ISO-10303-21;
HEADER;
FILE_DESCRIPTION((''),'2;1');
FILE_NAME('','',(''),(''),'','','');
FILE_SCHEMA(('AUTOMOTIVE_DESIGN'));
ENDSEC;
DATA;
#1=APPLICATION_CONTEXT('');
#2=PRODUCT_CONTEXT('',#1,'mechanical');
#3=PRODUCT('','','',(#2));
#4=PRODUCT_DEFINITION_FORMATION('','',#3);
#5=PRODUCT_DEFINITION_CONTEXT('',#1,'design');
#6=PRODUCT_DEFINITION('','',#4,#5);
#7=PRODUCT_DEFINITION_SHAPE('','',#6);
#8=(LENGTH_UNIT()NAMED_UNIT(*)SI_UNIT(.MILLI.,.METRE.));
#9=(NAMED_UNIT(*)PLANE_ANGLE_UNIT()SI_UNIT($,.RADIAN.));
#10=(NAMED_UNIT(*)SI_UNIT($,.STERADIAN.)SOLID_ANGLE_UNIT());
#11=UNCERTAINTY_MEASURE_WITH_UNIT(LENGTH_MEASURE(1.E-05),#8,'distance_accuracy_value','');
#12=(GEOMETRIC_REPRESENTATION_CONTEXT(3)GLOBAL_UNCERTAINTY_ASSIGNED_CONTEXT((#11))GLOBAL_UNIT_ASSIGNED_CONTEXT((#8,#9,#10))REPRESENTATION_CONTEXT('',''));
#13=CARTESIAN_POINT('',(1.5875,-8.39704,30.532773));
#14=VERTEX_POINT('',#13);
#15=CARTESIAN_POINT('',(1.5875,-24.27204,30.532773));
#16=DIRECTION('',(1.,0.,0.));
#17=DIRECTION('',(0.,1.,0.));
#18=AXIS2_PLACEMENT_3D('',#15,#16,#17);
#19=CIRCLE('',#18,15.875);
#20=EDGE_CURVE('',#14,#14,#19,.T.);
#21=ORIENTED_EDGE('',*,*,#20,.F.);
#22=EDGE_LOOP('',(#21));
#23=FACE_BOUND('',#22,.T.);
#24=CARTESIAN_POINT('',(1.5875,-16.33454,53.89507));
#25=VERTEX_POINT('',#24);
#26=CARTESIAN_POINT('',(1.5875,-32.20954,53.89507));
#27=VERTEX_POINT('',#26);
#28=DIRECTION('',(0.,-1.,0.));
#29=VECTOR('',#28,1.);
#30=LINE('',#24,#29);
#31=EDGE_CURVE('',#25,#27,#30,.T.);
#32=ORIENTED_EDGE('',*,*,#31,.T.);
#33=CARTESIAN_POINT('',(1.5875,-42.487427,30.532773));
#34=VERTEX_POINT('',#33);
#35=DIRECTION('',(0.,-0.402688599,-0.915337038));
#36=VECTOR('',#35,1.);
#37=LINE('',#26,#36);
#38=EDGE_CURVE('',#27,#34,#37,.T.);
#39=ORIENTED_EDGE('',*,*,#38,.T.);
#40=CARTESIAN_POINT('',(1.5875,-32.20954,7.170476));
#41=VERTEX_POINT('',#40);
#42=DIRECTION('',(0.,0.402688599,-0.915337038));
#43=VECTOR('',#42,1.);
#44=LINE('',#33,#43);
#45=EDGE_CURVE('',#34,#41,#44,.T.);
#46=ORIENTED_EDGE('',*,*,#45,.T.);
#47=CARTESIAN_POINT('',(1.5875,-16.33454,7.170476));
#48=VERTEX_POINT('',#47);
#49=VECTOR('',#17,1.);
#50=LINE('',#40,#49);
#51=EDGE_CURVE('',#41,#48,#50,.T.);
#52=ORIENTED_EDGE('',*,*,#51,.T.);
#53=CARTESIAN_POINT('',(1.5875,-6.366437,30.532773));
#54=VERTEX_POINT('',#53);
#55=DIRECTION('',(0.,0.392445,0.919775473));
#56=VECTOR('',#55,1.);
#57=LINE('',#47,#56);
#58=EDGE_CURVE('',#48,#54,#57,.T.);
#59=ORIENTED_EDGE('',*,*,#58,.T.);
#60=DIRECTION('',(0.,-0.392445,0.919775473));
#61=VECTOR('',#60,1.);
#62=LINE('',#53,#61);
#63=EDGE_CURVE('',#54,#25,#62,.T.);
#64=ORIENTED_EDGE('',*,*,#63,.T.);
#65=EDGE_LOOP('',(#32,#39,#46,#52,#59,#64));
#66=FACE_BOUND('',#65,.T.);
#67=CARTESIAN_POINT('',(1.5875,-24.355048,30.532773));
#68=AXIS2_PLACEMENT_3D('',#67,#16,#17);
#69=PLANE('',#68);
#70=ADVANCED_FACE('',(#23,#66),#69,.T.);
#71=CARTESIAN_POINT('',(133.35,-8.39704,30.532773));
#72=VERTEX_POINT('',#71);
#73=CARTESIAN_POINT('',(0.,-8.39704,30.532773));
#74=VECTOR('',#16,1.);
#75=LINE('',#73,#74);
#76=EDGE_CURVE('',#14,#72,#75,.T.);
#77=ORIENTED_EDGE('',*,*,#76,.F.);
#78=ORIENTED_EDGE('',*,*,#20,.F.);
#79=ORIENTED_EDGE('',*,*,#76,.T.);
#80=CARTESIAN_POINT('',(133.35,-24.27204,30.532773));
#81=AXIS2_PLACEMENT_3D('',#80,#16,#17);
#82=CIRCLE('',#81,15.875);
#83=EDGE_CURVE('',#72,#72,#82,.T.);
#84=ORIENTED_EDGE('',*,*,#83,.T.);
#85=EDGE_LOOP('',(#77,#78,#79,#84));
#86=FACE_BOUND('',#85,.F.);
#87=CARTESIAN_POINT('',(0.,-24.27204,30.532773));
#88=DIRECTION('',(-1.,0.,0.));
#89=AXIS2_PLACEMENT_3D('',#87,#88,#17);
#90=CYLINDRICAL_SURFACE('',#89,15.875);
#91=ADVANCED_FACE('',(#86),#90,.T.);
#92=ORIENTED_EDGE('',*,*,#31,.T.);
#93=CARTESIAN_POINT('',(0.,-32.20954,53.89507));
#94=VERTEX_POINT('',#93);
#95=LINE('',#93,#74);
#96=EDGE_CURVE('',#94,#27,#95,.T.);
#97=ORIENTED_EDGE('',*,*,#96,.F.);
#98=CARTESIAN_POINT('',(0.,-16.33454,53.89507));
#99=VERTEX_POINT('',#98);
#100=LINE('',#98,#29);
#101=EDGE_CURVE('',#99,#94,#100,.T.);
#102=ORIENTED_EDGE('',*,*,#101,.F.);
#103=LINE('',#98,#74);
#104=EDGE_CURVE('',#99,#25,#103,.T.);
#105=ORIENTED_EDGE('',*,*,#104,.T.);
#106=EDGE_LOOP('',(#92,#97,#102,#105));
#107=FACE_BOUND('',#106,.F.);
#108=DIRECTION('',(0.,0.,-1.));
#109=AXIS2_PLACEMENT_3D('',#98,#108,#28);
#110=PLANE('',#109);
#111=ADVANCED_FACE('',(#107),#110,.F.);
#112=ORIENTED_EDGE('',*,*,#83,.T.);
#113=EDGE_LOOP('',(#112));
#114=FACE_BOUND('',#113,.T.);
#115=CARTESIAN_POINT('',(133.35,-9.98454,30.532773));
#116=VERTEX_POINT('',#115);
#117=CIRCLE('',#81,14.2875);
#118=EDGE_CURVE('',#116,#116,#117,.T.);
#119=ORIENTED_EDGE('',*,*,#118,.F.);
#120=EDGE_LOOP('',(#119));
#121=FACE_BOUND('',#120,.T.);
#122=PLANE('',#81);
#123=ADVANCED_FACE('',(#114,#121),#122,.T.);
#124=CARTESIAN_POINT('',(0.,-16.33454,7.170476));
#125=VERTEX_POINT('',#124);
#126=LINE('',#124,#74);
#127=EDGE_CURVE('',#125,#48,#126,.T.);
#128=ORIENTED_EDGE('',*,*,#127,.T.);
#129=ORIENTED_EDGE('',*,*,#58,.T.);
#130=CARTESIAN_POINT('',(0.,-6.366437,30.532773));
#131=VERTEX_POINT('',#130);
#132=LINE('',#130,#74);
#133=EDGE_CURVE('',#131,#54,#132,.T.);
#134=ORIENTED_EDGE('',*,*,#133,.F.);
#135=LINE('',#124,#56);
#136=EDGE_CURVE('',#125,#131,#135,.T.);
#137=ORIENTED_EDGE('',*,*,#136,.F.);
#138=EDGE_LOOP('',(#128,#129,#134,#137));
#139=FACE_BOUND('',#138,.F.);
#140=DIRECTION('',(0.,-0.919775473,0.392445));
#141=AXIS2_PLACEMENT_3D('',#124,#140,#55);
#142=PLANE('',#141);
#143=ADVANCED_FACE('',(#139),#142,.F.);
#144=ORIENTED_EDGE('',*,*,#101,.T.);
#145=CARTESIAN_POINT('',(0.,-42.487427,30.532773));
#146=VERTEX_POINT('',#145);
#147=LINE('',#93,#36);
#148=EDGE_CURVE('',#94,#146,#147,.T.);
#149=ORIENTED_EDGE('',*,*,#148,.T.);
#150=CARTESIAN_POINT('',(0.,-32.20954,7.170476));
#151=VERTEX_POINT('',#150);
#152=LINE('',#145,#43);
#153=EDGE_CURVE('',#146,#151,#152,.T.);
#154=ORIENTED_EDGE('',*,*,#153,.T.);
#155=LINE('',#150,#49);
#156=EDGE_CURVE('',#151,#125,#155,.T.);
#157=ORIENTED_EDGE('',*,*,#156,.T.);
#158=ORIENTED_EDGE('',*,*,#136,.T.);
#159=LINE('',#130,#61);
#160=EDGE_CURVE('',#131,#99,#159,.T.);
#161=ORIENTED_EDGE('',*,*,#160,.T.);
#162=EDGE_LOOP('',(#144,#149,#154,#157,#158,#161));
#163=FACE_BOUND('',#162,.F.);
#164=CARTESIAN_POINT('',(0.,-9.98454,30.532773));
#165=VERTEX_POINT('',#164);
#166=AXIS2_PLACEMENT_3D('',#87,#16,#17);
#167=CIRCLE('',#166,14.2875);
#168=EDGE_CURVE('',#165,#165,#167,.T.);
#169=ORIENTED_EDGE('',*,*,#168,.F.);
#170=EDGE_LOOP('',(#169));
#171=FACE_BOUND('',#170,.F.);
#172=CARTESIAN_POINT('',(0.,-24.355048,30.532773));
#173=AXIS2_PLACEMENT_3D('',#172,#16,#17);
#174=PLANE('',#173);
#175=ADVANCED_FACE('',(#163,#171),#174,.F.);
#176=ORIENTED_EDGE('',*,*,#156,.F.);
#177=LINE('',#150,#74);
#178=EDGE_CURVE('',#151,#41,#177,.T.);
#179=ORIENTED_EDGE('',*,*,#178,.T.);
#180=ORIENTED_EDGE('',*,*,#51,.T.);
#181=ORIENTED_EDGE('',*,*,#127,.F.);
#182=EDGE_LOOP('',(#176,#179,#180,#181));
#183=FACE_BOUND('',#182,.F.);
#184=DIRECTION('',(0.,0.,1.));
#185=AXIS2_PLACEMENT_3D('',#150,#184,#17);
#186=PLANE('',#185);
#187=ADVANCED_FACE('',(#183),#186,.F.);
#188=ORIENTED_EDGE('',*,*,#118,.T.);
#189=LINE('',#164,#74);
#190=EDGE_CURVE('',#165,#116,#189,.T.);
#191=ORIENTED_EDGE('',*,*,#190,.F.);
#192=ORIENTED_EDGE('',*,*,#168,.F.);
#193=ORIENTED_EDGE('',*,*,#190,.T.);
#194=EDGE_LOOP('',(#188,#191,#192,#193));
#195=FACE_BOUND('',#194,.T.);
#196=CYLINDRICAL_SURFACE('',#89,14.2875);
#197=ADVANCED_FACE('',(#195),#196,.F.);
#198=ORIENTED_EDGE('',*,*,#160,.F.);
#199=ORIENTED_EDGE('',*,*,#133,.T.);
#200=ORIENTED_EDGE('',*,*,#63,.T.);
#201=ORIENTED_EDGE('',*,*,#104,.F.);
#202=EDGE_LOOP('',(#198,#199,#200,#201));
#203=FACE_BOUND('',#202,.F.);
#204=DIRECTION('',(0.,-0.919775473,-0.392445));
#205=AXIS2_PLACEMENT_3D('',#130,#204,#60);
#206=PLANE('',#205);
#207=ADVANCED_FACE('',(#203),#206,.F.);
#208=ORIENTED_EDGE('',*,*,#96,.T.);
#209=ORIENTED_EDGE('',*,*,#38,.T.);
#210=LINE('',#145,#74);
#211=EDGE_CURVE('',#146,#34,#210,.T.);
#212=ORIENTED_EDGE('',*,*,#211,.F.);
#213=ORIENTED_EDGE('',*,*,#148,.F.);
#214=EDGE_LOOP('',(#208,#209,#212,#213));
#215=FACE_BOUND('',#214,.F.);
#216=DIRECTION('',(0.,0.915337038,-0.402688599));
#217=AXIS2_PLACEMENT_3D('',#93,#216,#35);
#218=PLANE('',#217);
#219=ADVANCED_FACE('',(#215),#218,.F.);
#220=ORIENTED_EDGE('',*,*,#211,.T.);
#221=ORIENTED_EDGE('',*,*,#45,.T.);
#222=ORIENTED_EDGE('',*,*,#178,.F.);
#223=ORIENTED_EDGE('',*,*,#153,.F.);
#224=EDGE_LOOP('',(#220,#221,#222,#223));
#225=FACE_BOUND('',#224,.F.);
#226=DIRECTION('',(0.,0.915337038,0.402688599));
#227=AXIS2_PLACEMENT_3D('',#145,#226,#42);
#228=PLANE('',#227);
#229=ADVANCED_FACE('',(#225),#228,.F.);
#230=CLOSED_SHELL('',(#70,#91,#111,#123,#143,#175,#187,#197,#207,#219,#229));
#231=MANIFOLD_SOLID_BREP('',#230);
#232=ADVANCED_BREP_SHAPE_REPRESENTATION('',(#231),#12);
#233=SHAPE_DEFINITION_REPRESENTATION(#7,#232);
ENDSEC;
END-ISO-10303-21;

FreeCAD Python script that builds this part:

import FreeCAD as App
import Part
import Sketcher

V = App.Vector
Q = App.Units.Quantity


def add_polygon(sketch, points):
    """Adds a closed chain of lines whose ends are joined by coincident constraints."""
    first, n = sketch.GeometryCount, len(points)
    for a, b in zip(points, points[1:] + points[:1]):
        sketch.addGeometry(Part.LineSegment(App.Vector(*a, 0), App.Vector(*b, 0)), False)
    for i in range(n):
        sketch.addConstraint(Sketcher.Constraint("Coincident", first + i, 2, first + (i + 1) % n, 1))

doc = App.newDocument("Part")
body = doc.addObject("PartDesign::Body", "Body")

# Sketch on YZ plane
sketch1 = doc.addObject("Sketcher::SketchObject", "Sketch")
body.addObject(sketch1)
sketch1.AttachmentSupport = (doc.YZ_Plane, [""])
sketch1.MapMode = "FlatFace"
add_polygon(sketch1, [(-32, 7), (-16, 7), (-6, 31), (-16, 54), (-32, 54), (-42, 31)])  # lines 0-5
sketch1.addGeometry(Part.Circle(V(-24, 31, 0), V(0, 0, 1), 16), False)  # 6
sketch1.addConstraint([
    Sketcher.Constraint("Horizontal", 0),
    Sketcher.Constraint("Horizontal", 3),
    Sketcher.Constraint("Horizontal", 6, 3, 1, 2),
    Sketcher.Constraint("Horizontal", 1, 2, 4, 2),
    Sketcher.Constraint("Vertical", 0, 2, 2, 2),
    Sketcher.Constraint("Vertical", 3, 2, 5, 2),
    Sketcher.Constraint("Equal", 1, 2),
    Sketcher.Constraint("Diameter", 6, Q("1.25 in")),
    Sketcher.Constraint("Distance", 1, Q("1 in")),
    Sketcher.Constraint("DistanceX", 0, 1, 0, 2, Q("0.625 in")),
    Sketcher.Constraint("DistanceX", 6, 3, 0, 2, Q("0.3125 in")),
    Sketcher.Constraint("DistanceX", 6, 3, -1, 1, Q("24.27204 mm")),
    Sketcher.Constraint("DistanceY", -1, 1, 2, 2, Q("53.89507 mm")),
    Sketcher.Constraint("DistanceX", 4, 2, 1, 2, Q("36.12099 mm")),
    Sketcher.Constraint("Distance", 4, Q("25.523164 mm")),
])
pad1 = doc.addObject("PartDesign::Pad", "Pad")
body.addObject(pad1)
pad1.Profile = sketch1
pad1.Length = Q("0.0625 in")

# Sketch on YZ plane
sketch2 = doc.addObject("Sketcher::SketchObject", "Sketch001")
body.addObject(sketch2)
sketch2.AttachmentSupport = (doc.YZ_Plane, [""])
sketch2.MapMode = "FlatFace"
sketch2.addGeometry([
    Part.Circle(V(-24, 31, 0), V(0, 0, 1), 16),
    Part.Circle(V(-24, 31, 0), V(0, 0, 1), 14),
], False)
sketch2.addConstraint([
    Sketcher.Constraint("Coincident", 1, 3, 0, 3),
    Sketcher.Constraint("Diameter", 0, Q("1.25 in")),
    Sketcher.Constraint("Diameter", 1, Q("1.125 in")),
    Sketcher.Constraint("DistanceX", 0, 3, -1, 1, Q("24.27204 mm")),
    Sketcher.Constraint("DistanceY", -1, 1, 0, 3, Q("30.532773 mm")),
])
pad2 = doc.addObject("PartDesign::Pad", "Pad001")
body.addObject(pad2)
pad2.Profile = sketch2
pad2.Length = Q("5.25 in")

doc.recompute()
